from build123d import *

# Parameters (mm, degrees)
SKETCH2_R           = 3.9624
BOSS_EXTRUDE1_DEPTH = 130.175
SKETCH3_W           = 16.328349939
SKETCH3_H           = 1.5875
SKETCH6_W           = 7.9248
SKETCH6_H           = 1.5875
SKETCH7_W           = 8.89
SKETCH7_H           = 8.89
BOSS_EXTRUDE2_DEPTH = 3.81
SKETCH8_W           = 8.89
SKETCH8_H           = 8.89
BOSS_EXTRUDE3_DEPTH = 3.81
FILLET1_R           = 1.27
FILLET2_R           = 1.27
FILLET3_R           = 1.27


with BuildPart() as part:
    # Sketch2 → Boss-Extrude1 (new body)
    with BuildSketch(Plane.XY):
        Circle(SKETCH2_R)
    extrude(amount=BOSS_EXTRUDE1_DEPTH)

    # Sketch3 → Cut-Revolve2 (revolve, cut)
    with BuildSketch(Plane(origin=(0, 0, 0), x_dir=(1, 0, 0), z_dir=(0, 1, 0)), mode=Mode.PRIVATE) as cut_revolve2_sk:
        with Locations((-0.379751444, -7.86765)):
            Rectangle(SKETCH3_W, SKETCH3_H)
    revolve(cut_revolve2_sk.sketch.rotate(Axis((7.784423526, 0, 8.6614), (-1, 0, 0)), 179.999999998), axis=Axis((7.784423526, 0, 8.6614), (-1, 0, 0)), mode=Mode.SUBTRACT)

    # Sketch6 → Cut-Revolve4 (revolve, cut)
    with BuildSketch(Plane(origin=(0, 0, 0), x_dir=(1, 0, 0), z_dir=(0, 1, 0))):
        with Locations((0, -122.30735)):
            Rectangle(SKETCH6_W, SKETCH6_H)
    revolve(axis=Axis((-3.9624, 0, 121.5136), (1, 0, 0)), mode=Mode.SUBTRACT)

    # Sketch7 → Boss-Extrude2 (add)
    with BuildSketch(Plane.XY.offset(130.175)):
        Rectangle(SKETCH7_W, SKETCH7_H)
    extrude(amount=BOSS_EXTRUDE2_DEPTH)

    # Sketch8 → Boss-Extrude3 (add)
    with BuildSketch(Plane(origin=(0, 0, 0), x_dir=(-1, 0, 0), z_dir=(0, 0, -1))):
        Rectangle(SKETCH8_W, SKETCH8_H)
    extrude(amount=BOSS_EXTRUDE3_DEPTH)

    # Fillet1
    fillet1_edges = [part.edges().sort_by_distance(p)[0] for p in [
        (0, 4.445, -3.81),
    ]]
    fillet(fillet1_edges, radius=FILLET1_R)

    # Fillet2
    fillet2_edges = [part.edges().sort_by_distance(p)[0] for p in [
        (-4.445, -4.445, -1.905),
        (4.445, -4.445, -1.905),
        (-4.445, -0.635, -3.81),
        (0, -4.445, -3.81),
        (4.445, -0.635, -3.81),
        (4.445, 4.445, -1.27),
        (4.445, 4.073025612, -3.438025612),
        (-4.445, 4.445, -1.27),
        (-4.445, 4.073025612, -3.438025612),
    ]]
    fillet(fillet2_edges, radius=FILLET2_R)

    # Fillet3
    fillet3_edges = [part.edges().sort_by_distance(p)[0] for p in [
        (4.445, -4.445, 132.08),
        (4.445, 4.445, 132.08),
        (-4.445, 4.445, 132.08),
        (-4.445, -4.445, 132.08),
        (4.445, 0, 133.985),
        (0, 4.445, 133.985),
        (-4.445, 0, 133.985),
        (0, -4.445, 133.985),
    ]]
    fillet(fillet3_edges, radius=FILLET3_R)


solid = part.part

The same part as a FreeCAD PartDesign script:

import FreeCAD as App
import Part
import Sketcher

V = App.Vector
Q = App.Units.Quantity


def edges_at(feature, points):
    """Names of the edges that pass closest to the given points."""
    edges = feature.Shape.Edges
    near = lambda p: min(range(len(edges)), key=lambda i: edges[i].distToShape(Part.Vertex(*p))[0])
    return sorted({f"Edge{near(p) + 1}" for p in points})


def add_polygon(sketch, points):
    """Adds a closed chain of lines whose ends are joined by coincident constraints."""
    first, n = sketch.GeometryCount, len(points)
    for a, b in zip(points, points[1:] + points[:1]):
        sketch.addGeometry(Part.LineSegment(App.Vector(*a, 0), App.Vector(*b, 0)), False)
    for i in range(n):
        sketch.addConstraint(Sketcher.Constraint("Coincident", first + i, 2, first + (i + 1) % n, 1))

doc = App.newDocument("Part")
body = doc.addObject("PartDesign::Body", "Body")

sketch1 = doc.addObject("Sketcher::SketchObject", "Sketch")
body.addObject(sketch1)
sketch1.AttachmentSupport = (doc.XY_Plane, [""])
sketch1.MapMode = "FlatFace"
sketch1.addGeometry(Part.Circle(V(0, 0, 0), V(0, 0, 1), 4), False)
sketch1.addConstraint([
    Sketcher.Constraint("Coincident", 0, 3, -1, 1),
    Sketcher.Constraint("Diameter", 0, Q("0.312 in")),
])
pad1 = doc.addObject("PartDesign::Pad", "Pad")
body.addObject(pad1)
pad1.Profile = sketch1
pad1.Length = Q("5.125 in")

sketch2 = doc.addObject("Sketcher::SketchObject", "Sketch001")
body.addObject(sketch2)
sketch2.AttachmentSupport = (doc.XZ_Plane, [""])
sketch2.MapMode = "FlatFace"
add_polygon(sketch2, [(-8.5, 7.1), (-8.5, 8.7), (7.8, 8.7), (7.8, 7.1)])
sketch2.addGeometry(Part.LineSegment(V(7.8, 8.7, 0), V(-8.5, 8.7, 0)), True)
sketch2.addConstraint([
    Sketcher.Constraint("Vertical", 0),
    Sketcher.Constraint("Horizontal", 1),
    Sketcher.Constraint("Vertical", 2),
    Sketcher.Constraint("Horizontal", 3),
    Sketcher.Constraint("Horizontal", 4),
    Sketcher.Constraint("Coincident", 4, 1, 1, 2),
    Sketcher.Constraint("Vertical", 3, 2, 4, 2),
    Sketcher.Constraint("DistanceY", 0, 1, 0, 2, Q("0.0625 in")),
    Sketcher.Constraint("DistanceY", -1, 1, 0, 2, Q("0.341 in")),
    Sketcher.Constraint("DistanceX", 1, 1, 1, 2, Q("16.32835 mm")),
    Sketcher.Constraint("DistanceX", 0, 2, -1, 1, Q("8.543926 mm")),
])
groove = doc.addObject("PartDesign::Groove", "Groove")
body.addObject(groove)
groove.Profile = sketch2
groove.ReferenceAxis = (sketch2, ["Axis0"])
groove.Angle = 360

sketch3 = doc.addObject("Sketcher::SketchObject", "Sketch002")
body.addObject(sketch3)
sketch3.AttachmentSupport = (doc.XZ_Plane, [""])
sketch3.MapMode = "FlatFace"
add_polygon(sketch3, [(-4, 121.5), (-4, 123.1), (4, 123.1), (4, 121.5)])
sketch3.addGeometry(Part.LineSegment(V(-4, 121.5, 0), V(4, 121.5, 0)), True)
sketch3.addConstraint([
    Sketcher.Constraint("Vertical", 0),
    Sketcher.Constraint("Horizontal", 1),
    Sketcher.Constraint("Vertical", 2),
    Sketcher.Constraint("Horizontal", 3),
    Sketcher.Constraint("Horizontal", 4),
    Sketcher.Constraint("Coincident", 4, 1, 3, 2),
    Sketcher.Constraint("Vertical", 1, 2, 4, 2),
    Sketcher.Constraint("DistanceX", 1, 1, 1, 2, Q("0.312 in")),
    Sketcher.Constraint("DistanceY", 0, 1, 0, 2, Q("0.0625 in")),
    Sketcher.Constraint("DistanceX", 0, 2, -1, 1, Q("0.156 in")),
    Sketcher.Constraint("DistanceY", -1, 1, 2, 2, Q("4.784 in")),
])
groove2 = doc.addObject("PartDesign::Groove", "Groove001")
body.addObject(groove2)
groove2.Profile = sketch3
groove2.ReferenceAxis = (sketch3, ["Axis0"])
groove2.Angle = 360

sketch4 = doc.addObject("Sketcher::SketchObject", "Sketch003")
body.addObject(sketch4)
sketch4.AttachmentSupport = (doc.XY_Plane, [""])
sketch4.MapMode = "FlatFace"
sketch4.AttachmentOffset = App.Placement(V(0, 0, 5.125 * 25.4), App.Rotation())
add_polygon(sketch4, [(-4, 4), (-4, -4), (4, -4), (4, 4)])
sketch4.addConstraint([
    Sketcher.Constraint("Vertical", 0),
    Sketcher.Constraint("Horizontal", 1),
    Sketcher.Constraint("Vertical", 2),
    Sketcher.Constraint("Horizontal", 3),
    Sketcher.Constraint("Symmetric", 0, 2, 2, 2, -1, 1),
    Sketcher.Constraint("Equal", 3, 0),
    Sketcher.Constraint("DistanceX", 1, 1, 1, 2, Q("0.35 in")),
])
pad2 = doc.addObject("PartDesign::Pad", "Pad001")
body.addObject(pad2)
pad2.Profile = sketch4
pad2.Length = Q("0.15 in")

sketch5 = doc.addObject("Sketcher::SketchObject", "Sketch004")
body.addObject(sketch5)
sketch5.AttachmentSupport = (doc.XY_Plane, [""])
sketch5.MapMode = "FlatFace"
add_polygon(sketch5, [(4, 4), (4, -4), (-4, -4), (-4, 4)])
sketch5.addConstraint([
    Sketcher.Constraint("Vertical", 0),
    Sketcher.Constraint("Horizontal", 1),
    Sketcher.Constraint("Vertical", 2),
    Sketcher.Constraint("Horizontal", 3),
    Sketcher.Constraint("Symmetric", 0, 2, 2, 2, -1, 1),
    Sketcher.Constraint("Equal", 3, 0),
    Sketcher.Constraint("DistanceX", 1, 2, 1, 1, Q("0.35 in")),
])
pad3 = doc.addObject("PartDesign::Pad", "Pad002")
body.addObject(pad3)
pad3.Profile = sketch5
pad3.Length = Q("0.15 in")
pad3.Reversed = True
doc.recompute()

fillet = doc.addObject("PartDesign::Fillet", "Fillet")
body.addObject(fillet)
fillet.Base = (pad3, edges_at(pad3, [(0, 4.445, -3.81)]))
fillet.Radius = Q("0.05 in")
doc.recompute()

fillet2 = doc.addObject("PartDesign::Fillet", "Fillet001")
body.addObject(fillet2)
fillet2.Base = (fillet, edges_at(fillet, [
    (-4.445, -4.445, -1.905),
    (4.445, -4.445, -1.905),
    (-4.445, -0.635, -3.81),
    (0, -4.445, -3.81),
    (4.445, -0.635, -3.81),
    (4.445, 4.445, -1.27),
    (4.445, 4.073, -3.438),
    (-4.445, 4.445, -1.27),
    (-4.445, 4.073, -3.438),
]))
fillet2.Radius = Q("0.05 in")
doc.recompute()

fillet3 = doc.addObject("PartDesign::Fillet", "Fillet002")
body.addObject(fillet3)
fillet3.Base = (fillet2, edges_at(fillet2, [
    (4.445, -4.445, 132.08),
    (4.445, 4.445, 132.08),
    (-4.445, 4.445, 132.08),
    (-4.445, -4.445, 132.08),
    (4.445, 0, 133.985),
    (0, 4.445, 133.985),
    (-4.445, 0, 133.985),
    (0, -4.445, 133.985),
]))
fillet3.Radius = Q("0.05 in")

doc.recompute()
